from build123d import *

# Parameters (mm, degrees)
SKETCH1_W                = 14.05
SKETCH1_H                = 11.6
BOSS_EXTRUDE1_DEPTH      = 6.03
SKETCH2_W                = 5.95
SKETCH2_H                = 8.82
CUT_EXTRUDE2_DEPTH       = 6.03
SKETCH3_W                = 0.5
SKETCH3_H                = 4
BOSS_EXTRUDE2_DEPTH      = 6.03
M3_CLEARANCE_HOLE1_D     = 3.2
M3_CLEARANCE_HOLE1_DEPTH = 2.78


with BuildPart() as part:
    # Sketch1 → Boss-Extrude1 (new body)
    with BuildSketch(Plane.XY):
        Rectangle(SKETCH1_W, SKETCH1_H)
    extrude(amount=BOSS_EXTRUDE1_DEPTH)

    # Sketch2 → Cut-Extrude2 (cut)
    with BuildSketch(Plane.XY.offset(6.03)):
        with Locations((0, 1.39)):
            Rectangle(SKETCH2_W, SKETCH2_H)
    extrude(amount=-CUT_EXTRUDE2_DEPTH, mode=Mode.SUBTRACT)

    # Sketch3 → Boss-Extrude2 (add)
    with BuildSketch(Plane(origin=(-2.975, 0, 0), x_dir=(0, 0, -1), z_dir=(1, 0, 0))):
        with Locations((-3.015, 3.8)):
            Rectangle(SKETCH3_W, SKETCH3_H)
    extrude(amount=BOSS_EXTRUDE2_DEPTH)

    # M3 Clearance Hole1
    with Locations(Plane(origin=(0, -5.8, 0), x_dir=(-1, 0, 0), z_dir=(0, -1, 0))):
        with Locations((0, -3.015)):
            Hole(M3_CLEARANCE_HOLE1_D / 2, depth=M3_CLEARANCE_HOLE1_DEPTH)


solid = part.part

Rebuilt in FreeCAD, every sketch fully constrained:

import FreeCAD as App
import Part
import Sketcher

V = App.Vector
Q = App.Units.Quantity

doc = App.newDocument("Part")
body = doc.addObject("PartDesign::Body", "Body")

sketch1 = body.newObject("Sketcher::SketchObject", "Sketch")
sketch1.AttachmentSupport = (doc.getObject("XY_Plane"), [""])
sketch1.MapMode = "FlatFace"
sketch1.addGeometry([
    Part.LineSegment(V(-7.025, 5.8, 0), V(-7.025, -5.8, 0)),
    Part.LineSegment(V(-7.025, -5.8, 0), V(7.025, -5.8, 0)),
    Part.LineSegment(V(7.025, -5.8, 0), V(7.025, 5.8, 0)),
    Part.LineSegment(V(7.025, 5.8, 0), V(-7.025, 5.8, 0)),
], False)
sketch1.addConstraint([
    Sketcher.Constraint("Coincident", 0, 2, 1, 1),
    Sketcher.Constraint("Coincident", 1, 2, 2, 1),
    Sketcher.Constraint("Coincident", 2, 2, 3, 1),
    Sketcher.Constraint("Coincident", 3, 2, 0, 1),
    Sketcher.Constraint("Vertical", 0),
    Sketcher.Constraint("Horizontal", 1),
    Sketcher.Constraint("Vertical", 2),
    Sketcher.Constraint("Horizontal", 3),
    Sketcher.Constraint("Symmetric", 0, 2, 2, 2, -1, 1),
    Sketcher.Constraint("DistanceY", 0, 2, 0, 1, Q("11.6 mm")),
    Sketcher.Constraint("DistanceX", 1, 1, 1, 2, Q("14.05 mm")),
])
pad1 = body.newObject("PartDesign::Pad", "Pad")
pad1.Profile = sketch1
pad1.Length = 6.03

sketch2 = body.newObject("Sketcher::SketchObject", "Sketch001")
sketch2.AttachmentSupport = (doc.getObject("XY_Plane"), [""])
sketch2.MapMode = "FlatFace"
sketch2.AttachmentOffset = App.Placement(V(0, 0, 6.03), App.Rotation())
sketch2.addGeometry([
    Part.LineSegment(V(-2.975, 5.8, 0), V(-2.975, -3.02, 0)),
    Part.LineSegment(V(-2.975, -3.02, 0), V(2.975, -3.02, 0)),
    Part.LineSegment(V(2.975, -3.02, 0), V(2.975, 5.8, 0)),
    Part.LineSegment(V(2.975, 5.8, 0), V(-2.975, 5.8, 0)),
], False)
sketch2.addConstraint([
    Sketcher.Constraint("Coincident", 0, 2, 1, 1),
    Sketcher.Constraint("Coincident", 1, 2, 2, 1),
    Sketcher.Constraint("Coincident", 2, 2, 3, 1),
    Sketcher.Constraint("Coincident", 3, 2, 0, 1),
    Sketcher.Constraint("Vertical", 0),
    Sketcher.Constraint("Horizontal", 1),
    Sketcher.Constraint("Vertical", 2),
    Sketcher.Constraint("Horizontal", 3),
    Sketcher.Constraint("DistanceX", 1, 1, 1, 2, Q("5.95 mm")),
    Sketcher.Constraint("DistanceY", 0, 2, 0, 1, Q("8.82 mm")),
    Sketcher.Constraint("DistanceY", -1, 1, 2, 2, Q("5.8 mm")),
    Sketcher.Constraint("DistanceX", 0, 2, -1, 1, Q("2.975 mm")),
])
pocket1 = body.newObject("PartDesign::Pocket", "Pocket")
pocket1.Profile = sketch2
pocket1.Length = 6.03

sketch3 = body.newObject("Sketcher::SketchObject", "Sketch002")
sketch3.AttachmentSupport = (doc.getObject("YZ_Plane"), [""])
sketch3.MapMode = "FlatFace"
sketch3.AttachmentOffset = App.Placement(V(0, 0, -2.975), App.Rotation())
sketch3.addGeometry([
    Part.LineSegment(V(5.8, 3.265, 0), V(1.8, 3.265, 0)),
    Part.LineSegment(V(1.8, 3.265, 0), V(1.8, 2.765, 0)),
    Part.LineSegment(V(1.8, 2.765, 0), V(5.8, 2.765, 0)),
    Part.LineSegment(V(5.8, 2.765, 0), V(5.8, 3.265, 0)),
], False)
sketch3.addConstraint([
    Sketcher.Constraint("Coincident", 0, 2, 1, 1),
    Sketcher.Constraint("Coincident", 1, 2, 2, 1),
    Sketcher.Constraint("Coincident", 2, 2, 3, 1),
    Sketcher.Constraint("Coincident", 3, 2, 0, 1),
    Sketcher.Constraint("Horizontal", 0),
    Sketcher.Constraint("Vertical", 1),
    Sketcher.Constraint("Horizontal", 2),
    Sketcher.Constraint("Vertical", 3),
    Sketcher.Constraint("DistanceX", 0, 2, 0, 1, Q("4 mm")),
    Sketcher.Constraint("DistanceY", 1, 2, 1, 1, Q("0.5 mm")),
    Sketcher.Constraint("DistanceX", -1, 1, 0, 2, Q("1.8 mm")),
    Sketcher.Constraint("DistanceY", -1, 1, 0, 2, Q("3.265 mm")),
])
pad2 = body.newObject("PartDesign::Pad", "Pad001")
pad2.Profile = sketch3
pad2.Length = 6.03

sketch4 = body.newObject("Sketcher::SketchObject", "Sketch003")
sketch4.AttachmentSupport = (doc.getObject("XZ_Plane"), [""])
sketch4.MapMode = "FlatFace"
sketch4.AttachmentOffset = App.Placement(V(0, 0, 5.8), App.Rotation())
sketch4.addGeometry(Part.Circle(V(0, 3.015, 0), V(0, 0, 1), 1.6), False)
sketch4.addConstraint([
    Sketcher.Constraint("PointOnObject", 0, 3, -2),
    Sketcher.Constraint("Diameter", 0, Q("3.2 mm")),
    Sketcher.Constraint("DistanceY", -1, 1, 0, 3, Q("3.015 mm")),
])
doc.recompute()
hole = body.newObject("PartDesign::Hole", "Hole")
hole.Profile = sketch4
hole.ThreadType = "None"
hole.Diameter = 3.2
hole.DepthType = "Dimension"
hole.Depth = 2.78
hole.DrillPoint = "Flat"

doc.recompute()
